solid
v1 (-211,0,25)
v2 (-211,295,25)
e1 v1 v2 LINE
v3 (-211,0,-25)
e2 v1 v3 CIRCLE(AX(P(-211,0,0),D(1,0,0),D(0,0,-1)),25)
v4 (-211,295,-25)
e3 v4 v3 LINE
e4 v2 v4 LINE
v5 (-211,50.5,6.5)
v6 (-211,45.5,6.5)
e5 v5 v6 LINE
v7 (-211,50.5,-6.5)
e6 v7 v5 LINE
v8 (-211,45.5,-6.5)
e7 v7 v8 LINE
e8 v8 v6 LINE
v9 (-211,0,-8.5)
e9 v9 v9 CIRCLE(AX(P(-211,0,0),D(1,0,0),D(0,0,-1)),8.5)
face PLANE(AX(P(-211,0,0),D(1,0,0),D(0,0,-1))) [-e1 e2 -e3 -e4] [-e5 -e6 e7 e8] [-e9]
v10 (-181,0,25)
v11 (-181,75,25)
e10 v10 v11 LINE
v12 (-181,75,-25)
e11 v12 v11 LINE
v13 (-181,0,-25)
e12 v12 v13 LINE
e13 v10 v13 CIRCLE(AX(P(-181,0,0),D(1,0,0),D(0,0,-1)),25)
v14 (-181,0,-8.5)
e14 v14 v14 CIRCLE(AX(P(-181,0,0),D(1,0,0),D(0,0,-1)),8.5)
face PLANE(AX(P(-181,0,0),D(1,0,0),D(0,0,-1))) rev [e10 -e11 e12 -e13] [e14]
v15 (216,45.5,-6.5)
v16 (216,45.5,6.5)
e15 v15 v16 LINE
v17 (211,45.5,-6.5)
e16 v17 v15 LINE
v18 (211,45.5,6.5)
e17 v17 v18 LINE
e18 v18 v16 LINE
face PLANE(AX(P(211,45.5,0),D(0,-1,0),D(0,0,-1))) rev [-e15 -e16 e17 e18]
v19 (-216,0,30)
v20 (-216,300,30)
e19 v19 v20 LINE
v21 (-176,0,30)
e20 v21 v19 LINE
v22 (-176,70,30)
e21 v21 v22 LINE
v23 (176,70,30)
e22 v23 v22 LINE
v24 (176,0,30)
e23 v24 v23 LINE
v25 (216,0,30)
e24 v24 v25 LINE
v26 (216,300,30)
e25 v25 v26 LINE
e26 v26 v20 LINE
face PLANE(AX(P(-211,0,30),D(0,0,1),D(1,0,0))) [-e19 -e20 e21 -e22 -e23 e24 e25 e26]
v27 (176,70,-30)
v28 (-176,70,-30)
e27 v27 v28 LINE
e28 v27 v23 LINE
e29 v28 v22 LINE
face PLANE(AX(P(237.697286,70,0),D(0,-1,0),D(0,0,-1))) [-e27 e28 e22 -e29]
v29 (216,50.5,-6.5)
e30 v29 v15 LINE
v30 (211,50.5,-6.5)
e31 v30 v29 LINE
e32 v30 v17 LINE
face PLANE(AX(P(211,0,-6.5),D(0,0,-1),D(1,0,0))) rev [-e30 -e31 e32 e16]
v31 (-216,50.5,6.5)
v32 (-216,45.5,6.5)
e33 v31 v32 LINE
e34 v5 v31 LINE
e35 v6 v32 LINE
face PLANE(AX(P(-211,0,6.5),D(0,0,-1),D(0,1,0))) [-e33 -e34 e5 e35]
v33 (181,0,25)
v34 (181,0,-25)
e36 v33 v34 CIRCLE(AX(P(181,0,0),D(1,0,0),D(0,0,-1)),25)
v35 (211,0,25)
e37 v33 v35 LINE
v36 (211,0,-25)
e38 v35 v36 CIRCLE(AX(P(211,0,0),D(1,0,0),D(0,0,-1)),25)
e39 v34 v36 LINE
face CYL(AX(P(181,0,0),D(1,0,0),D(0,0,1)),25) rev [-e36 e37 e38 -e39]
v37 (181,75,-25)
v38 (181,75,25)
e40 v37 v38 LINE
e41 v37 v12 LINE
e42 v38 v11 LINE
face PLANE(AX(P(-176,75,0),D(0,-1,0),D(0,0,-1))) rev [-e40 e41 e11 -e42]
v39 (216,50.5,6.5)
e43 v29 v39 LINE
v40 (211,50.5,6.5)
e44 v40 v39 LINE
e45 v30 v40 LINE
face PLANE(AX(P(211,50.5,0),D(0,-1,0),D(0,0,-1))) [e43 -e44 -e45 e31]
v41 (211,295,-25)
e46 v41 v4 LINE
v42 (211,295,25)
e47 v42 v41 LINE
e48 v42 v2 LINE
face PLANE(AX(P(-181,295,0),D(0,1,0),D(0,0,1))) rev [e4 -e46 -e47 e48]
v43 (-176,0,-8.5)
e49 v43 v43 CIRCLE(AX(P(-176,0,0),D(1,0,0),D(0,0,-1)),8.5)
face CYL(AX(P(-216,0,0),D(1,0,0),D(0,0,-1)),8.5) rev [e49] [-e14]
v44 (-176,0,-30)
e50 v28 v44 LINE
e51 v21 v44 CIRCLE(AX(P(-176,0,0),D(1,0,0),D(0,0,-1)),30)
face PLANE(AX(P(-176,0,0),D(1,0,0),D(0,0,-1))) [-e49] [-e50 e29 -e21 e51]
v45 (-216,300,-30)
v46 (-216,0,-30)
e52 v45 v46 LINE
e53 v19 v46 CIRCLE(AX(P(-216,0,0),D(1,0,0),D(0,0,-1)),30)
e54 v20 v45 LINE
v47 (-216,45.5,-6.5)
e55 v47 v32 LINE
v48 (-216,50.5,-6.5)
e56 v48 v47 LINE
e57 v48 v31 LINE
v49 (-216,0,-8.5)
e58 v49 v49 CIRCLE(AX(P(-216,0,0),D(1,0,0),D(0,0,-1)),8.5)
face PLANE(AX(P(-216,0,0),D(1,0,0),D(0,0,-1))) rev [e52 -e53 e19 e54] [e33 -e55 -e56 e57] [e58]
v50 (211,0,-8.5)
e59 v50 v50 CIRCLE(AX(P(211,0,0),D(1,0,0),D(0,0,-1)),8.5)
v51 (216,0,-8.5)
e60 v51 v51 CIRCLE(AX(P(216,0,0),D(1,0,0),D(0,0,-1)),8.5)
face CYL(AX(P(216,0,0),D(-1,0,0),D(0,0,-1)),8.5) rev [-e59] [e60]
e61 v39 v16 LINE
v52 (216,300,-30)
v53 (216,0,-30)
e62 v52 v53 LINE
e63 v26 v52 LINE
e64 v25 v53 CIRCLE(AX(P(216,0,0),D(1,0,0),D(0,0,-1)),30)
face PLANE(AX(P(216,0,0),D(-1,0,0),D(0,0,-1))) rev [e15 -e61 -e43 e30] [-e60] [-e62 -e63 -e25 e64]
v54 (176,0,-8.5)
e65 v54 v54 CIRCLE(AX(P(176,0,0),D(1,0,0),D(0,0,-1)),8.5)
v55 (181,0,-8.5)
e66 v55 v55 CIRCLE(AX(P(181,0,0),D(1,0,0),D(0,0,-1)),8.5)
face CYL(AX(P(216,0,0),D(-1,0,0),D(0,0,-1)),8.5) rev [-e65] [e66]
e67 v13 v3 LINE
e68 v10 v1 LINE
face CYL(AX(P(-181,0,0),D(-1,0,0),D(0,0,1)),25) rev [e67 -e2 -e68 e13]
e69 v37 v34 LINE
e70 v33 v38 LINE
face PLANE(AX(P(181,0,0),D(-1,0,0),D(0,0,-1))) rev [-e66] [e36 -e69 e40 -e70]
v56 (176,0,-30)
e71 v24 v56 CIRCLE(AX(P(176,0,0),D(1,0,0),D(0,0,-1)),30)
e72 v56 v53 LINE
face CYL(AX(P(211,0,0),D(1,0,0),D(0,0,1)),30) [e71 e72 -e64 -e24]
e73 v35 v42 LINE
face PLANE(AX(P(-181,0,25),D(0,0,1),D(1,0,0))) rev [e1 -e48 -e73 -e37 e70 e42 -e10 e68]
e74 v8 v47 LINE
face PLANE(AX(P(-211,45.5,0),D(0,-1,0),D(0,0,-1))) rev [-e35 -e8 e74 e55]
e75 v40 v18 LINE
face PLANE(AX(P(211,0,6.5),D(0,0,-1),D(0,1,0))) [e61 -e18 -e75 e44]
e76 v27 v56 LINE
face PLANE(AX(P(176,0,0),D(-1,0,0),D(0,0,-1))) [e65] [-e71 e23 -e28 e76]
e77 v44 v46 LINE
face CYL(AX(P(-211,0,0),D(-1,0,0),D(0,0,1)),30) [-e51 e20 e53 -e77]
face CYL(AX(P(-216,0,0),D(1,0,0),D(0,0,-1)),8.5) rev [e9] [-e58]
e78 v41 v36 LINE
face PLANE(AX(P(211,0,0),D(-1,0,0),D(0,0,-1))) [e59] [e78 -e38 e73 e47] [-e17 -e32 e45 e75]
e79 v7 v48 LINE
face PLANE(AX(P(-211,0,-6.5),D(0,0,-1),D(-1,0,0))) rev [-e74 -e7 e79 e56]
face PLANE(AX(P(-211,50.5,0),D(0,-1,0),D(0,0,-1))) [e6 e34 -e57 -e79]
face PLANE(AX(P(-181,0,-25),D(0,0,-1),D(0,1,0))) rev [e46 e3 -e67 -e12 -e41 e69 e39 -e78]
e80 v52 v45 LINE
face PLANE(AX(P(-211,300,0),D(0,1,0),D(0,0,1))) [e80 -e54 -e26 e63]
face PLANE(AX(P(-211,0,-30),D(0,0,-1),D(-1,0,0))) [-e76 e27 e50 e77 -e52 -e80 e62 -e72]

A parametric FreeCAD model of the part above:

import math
import FreeCAD as App
import Part
import Sketcher

doc = App.newDocument("Part")
body = doc.addObject("PartDesign::Body", "Body")

sketch1 = doc.addObject("Sketcher::SketchObject", "Sketch")
body.addObject(sketch1)
sketch1.AttachmentSupport = (doc.YZ_Plane, [""])
sketch1.MapMode = "FlatFace"
sketch1.AttachmentOffset = App.Placement(App.Vector(0, 0, -216), App.Rotation())
sketch1.addGeometry([
    Part.LineSegment(App.Vector(300, 30, 0), App.Vector(0, 30, 0)),
    Part.ArcOfCircle(Part.Circle(App.Vector(0, 0, 0), App.Vector(0, 0, 1), 30), math.radians(90), math.radians(270)),
    Part.LineSegment(App.Vector(0, -30, 0), App.Vector(300, -30, 0)),
    Part.LineSegment(App.Vector(300, -30, 0), App.Vector(300, 30, 0)),
    Part.LineSegment(App.Vector(46, 6, 0), App.Vector(50, 6, 0)),
    Part.LineSegment(App.Vector(50, 6, 0), App.Vector(50, -6, 0)),
    Part.LineSegment(App.Vector(50, -6, 0), App.Vector(46, -6, 0)),
    Part.LineSegment(App.Vector(46, -6, 0), App.Vector(46, 6, 0)),
], False)
sketch1.addConstraint([
    Sketcher.Constraint("Tangent", 0, 2, 1, 1),
    Sketcher.Constraint("Tangent", 1, 2, 2, 1),
    Sketcher.Constraint("Coincident", 2, 2, 3, 1),
    Sketcher.Constraint("Coincident", 3, 2, 0, 1),
    Sketcher.Constraint("Coincident", 4, 2, 5, 1),
    Sketcher.Constraint("Coincident", 5, 2, 6, 1),
    Sketcher.Constraint("Coincident", 6, 2, 7, 1),
    Sketcher.Constraint("Coincident", 7, 2, 4, 1),
    Sketcher.Constraint("Horizontal", 0),
    Sketcher.Constraint("Horizontal", 2),
    Sketcher.Constraint("Vertical", 3),
    Sketcher.Constraint("Horizontal", 4),
    Sketcher.Constraint("Vertical", 5),
    Sketcher.Constraint("Horizontal", 6),
    Sketcher.Constraint("Vertical", 7),
    Sketcher.Constraint("Coincident", 1, 3, -1, 1),
    Sketcher.Constraint("Radius", 1, 30.0),
    Sketcher.Constraint("DistanceX", 0, 2, 0, 1, 300.0),
    Sketcher.Constraint("DistanceX", 4, 1, 4, 2, 5.0),
    Sketcher.Constraint("DistanceY", 5, 2, 5, 1, 13.0),
    Sketcher.Constraint("DistanceX", -1, 1, 4, 2, 50.5),
    Sketcher.Constraint("DistanceY", -1, 1, 4, 2, 6.5),
])
pad1 = doc.addObject("PartDesign::Pad", "Pad")
body.addObject(pad1)
pad1.Profile = sketch1
pad1.Length = 5

sketch2 = doc.addObject("Sketcher::SketchObject", "Sketch001")
body.addObject(sketch2)
sketch2.AttachmentSupport = (doc.YZ_Plane, [""])
sketch2.MapMode = "FlatFace"
sketch2.AttachmentOffset = App.Placement(App.Vector(0, 0, -211), App.Rotation())
sketch2.addGeometry([
    Part.LineSegment(App.Vector(300, 30, 0), App.Vector(0, 30, 0)),
    Part.ArcOfCircle(Part.Circle(App.Vector(0, 0, 0), App.Vector(0, 0, 1), 30), math.radians(90), math.radians(270)),
    Part.LineSegment(App.Vector(0, -30, 0), App.Vector(300, -30, 0)),
    Part.LineSegment(App.Vector(300, -30, 0), App.Vector(300, 30, 0)),
    Part.ArcOfCircle(Part.Circle(App.Vector(0, 0, 0), App.Vector(0, 0, 1), 25), math.radians(90), math.radians(270)),
    Part.LineSegment(App.Vector(0, 25, 0), App.Vector(295, 25, 0)),
    Part.LineSegment(App.Vector(295, 25, 0), App.Vector(295, -25, 0)),
    Part.LineSegment(App.Vector(295, -25, 0), App.Vector(0, -25, 0)),
], False)
sketch2.addConstraint([
    Sketcher.Constraint("Tangent", 0, 2, 1, 1),
    Sketcher.Constraint("Tangent", 1, 2, 2, 1),
    Sketcher.Constraint("Coincident", 2, 2, 3, 1),
    Sketcher.Constraint("Coincident", 3, 2, 0, 1),
    Sketcher.Constraint("Tangent", 4, 1, 5, 1),
    Sketcher.Constraint("Coincident", 5, 2, 6, 1),
    Sketcher.Constraint("Coincident", 6, 2, 7, 1),
    Sketcher.Constraint("Tangent", 7, 2, 4, 2),
    Sketcher.Constraint("Horizontal", 0),
    Sketcher.Constraint("Horizontal", 2),
    Sketcher.Constraint("Vertical", 3),
    Sketcher.Constraint("Horizontal", 5),
    Sketcher.Constraint("Vertical", 6),
    Sketcher.Constraint("Horizontal", 7),
    Sketcher.Constraint("Coincident", 1, 3, -1, 1),
    Sketcher.Constraint("Coincident", 4, 3, -1, 1),
    Sketcher.Constraint("Radius", 1, 30.0),
    Sketcher.Constraint("Radius", 4, 25.0),
    Sketcher.Constraint("DistanceX", 0, 2, 0, 1, 300.0),
    Sketcher.Constraint("DistanceX", 5, 1, 5, 2, 295.0),
])
pad2 = doc.addObject("PartDesign::Pad", "Pad001")
body.addObject(pad2)
pad2.Profile = sketch2
pad2.Length = 30

sketch3 = doc.addObject("Sketcher::SketchObject", "Sketch002")
body.addObject(sketch3)
sketch3.AttachmentSupport = (doc.YZ_Plane, [""])
sketch3.MapMode = "FlatFace"
sketch3.AttachmentOffset = App.Placement(App.Vector(0, 0, -181), App.Rotation())
sketch3.addGeometry([
    Part.ArcOfCircle(Part.Circle(App.Vector(0, 0, 0), App.Vector(0, 0, 1), 30), math.radians(90), math.radians(270)),
    Part.LineSegment(App.Vector(0, -30, 0), App.Vector(300, -30, 0)),
    Part.LineSegment(App.Vector(300, -30, 0), App.Vector(300, 30, 0)),
    Part.LineSegment(App.Vector(300, 30, 0), App.Vector(0, 30, 0)),
    Part.LineSegment(App.Vector(75, -25, 0), App.Vector(75, 25, 0)),
    Part.LineSegment(App.Vector(75, 25, 0), App.Vector(295, 25, 0)),
    Part.LineSegment(App.Vector(295, 25, 0), App.Vector(295, -25, 0)),
    Part.LineSegment(App.Vector(295, -25, 0), App.Vector(75, -25, 0)),
], False)
sketch3.addConstraint([
    Sketcher.Constraint("Tangent", 0, 2, 1, 1),
    Sketcher.Constraint("Coincident", 1, 2, 2, 1),
    Sketcher.Constraint("Coincident", 2, 2, 3, 1),
    Sketcher.Constraint("Tangent", 3, 2, 0, 1),
    Sketcher.Constraint("Coincident", 4, 2, 5, 1),
    Sketcher.Constraint("Coincident", 5, 2, 6, 1),
    Sketcher.Constraint("Coincident", 6, 2, 7, 1),
    Sketcher.Constraint("Coincident", 7, 2, 4, 1),
    Sketcher.Constraint("Horizontal", 1),
    Sketcher.Constraint("Vertical", 2),
    Sketcher.Constraint("Horizontal", 3),
    Sketcher.Constraint("Vertical", 4),
    Sketcher.Constraint("Horizontal", 5),
    Sketcher.Constraint("Vertical", 6),
    Sketcher.Constraint("Horizontal", 7),
    Sketcher.Constraint("Coincident", 0, 3, -1, 1),
    Sketcher.Constraint("Radius", 0, 30.0),
    Sketcher.Constraint("DistanceX", 1, 1, 1, 2, 300.0),
    Sketcher.Constraint("DistanceX", 5, 1, 5, 2, 220.0),
    Sketcher.Constraint("DistanceY", 4, 1, 4, 2, 50.0),
    Sketcher.Constraint("DistanceX", -1, 1, 4, 2, 75.0),
    Sketcher.Constraint("DistanceY", -1, 1, 4, 2, 25.0),
])
pad3 = doc.addObject("PartDesign::Pad", "Pad002")
body.addObject(pad3)
pad3.Profile = sketch3
pad3.Length = 5

sketch4 = doc.addObject("Sketcher::SketchObject", "Sketch003")
body.addObject(sketch4)
sketch4.AttachmentSupport = (doc.YZ_Plane, [""])
sketch4.MapMode = "FlatFace"
sketch4.AttachmentOffset = App.Placement(App.Vector(0, 0, -176), App.Rotation())
sketch4.addGeometry([
    Part.LineSegment(App.Vector(70, 30, 0), App.Vector(70, -30, 0)),
    Part.LineSegment(App.Vector(70, -30, 0), App.Vector(300, -30, 0)),
    Part.LineSegment(App.Vector(300, -30, 0), App.Vector(300, 30, 0)),
    Part.LineSegment(App.Vector(300, 30, 0), App.Vector(70, 30, 0)),
    Part.LineSegment(App.Vector(75, -25, 0), App.Vector(75, 25, 0)),
    Part.LineSegment(App.Vector(75, 25, 0), App.Vector(295, 25, 0)),
    Part.LineSegment(App.Vector(295, 25, 0), App.Vector(295, -25, 0)),
    Part.LineSegment(App.Vector(295, -25, 0), App.Vector(75, -25, 0)),
], False)
sketch4.addConstraint([
    Sketcher.Constraint("Coincident", 0, 2, 1, 1),
    Sketcher.Constraint("Coincident", 1, 2, 2, 1),
    Sketcher.Constraint("Coincident", 2, 2, 3, 1),
    Sketcher.Constraint("Coincident", 3, 2, 0, 1),
    Sketcher.Constraint("Coincident", 4, 2, 5, 1),
    Sketcher.Constraint("Coincident", 5, 2, 6, 1),
    Sketcher.Constraint("Coincident", 6, 2, 7, 1),
    Sketcher.Constraint("Coincident", 7, 2, 4, 1),
    Sketcher.Constraint("Vertical", 0),
    Sketcher.Constraint("Horizontal", 1),
    Sketcher.Constraint("Vertical", 2),
    Sketcher.Constraint("Horizontal", 3),
    Sketcher.Constraint("Vertical", 4),
    Sketcher.Constraint("Horizontal", 5),
    Sketcher.Constraint("Vertical", 6),
    Sketcher.Constraint("Horizontal", 7),
    Sketcher.Constraint("DistanceX", 1, 1, 1, 2, 230.0),
    Sketcher.Constraint("DistanceX", 5, 1, 5, 2, 220.0),
    Sketcher.Constraint("DistanceY", 0, 2, 0, 1, 60.0),
    Sketcher.Constraint("DistanceY", 4, 1, 4, 2, 50.0),
    Sketcher.Constraint("DistanceX", -1, 1, 0, 2, 70.0),
    Sketcher.Constraint("DistanceY", 0, 2, -1, 1, 30.0),
    Sketcher.Constraint("DistanceX", -1, 1, 4, 2, 75.0),
    Sketcher.Constraint("DistanceY", -1, 1, 4, 2, 25.0),
])
pad4 = doc.addObject("PartDesign::Pad", "Pad003")
body.addObject(pad4)
pad4.Profile = sketch4
pad4.Length = 176

sketch5 = doc.addObject("Sketcher::SketchObject", "Sketch004")
body.addObject(sketch5)
sketch5.AttachmentSupport = (doc.YZ_Plane, [""])
sketch5.MapMode = "FlatFace"
sketch5.addGeometry(Part.Circle(App.Vector(0, 0, 0), App.Vector(0, 0, 1), 8), False)
sketch5.addConstraint([
    Sketcher.Constraint("Coincident", 0, 3, -1, 1),
    Sketcher.Constraint("Diameter", 0, 17.0),
])
pocket1 = doc.addObject("PartDesign::Pocket", "Pocket")
body.addObject(pocket1)
pocket1.Profile = sketch5
pocket1.Type = "ThroughAll"
body2 = doc.addObject("PartDesign::Body", "Body001")
doc.recompute()

body2.BaseFeature = body
doc.recompute()

mirroring = doc.addObject("Part::Mirroring", "Mirroring")
mirroring.Source = body
mirroring.Base = App.Vector(0, 0, 0)
mirroring.Normal = App.Vector(1, 0, 0)
body3 = doc.addObject("PartDesign::Body", "Body002")
body3.BaseFeature = mirroring
boolean = doc.addObject("PartDesign::Boolean", "Boolean")
body2.addObject(boolean)
boolean.Type = "Fuse"
boolean.addObjects([body3])
doc.recompute()
mirroring.Visibility = False

doc.recompute()
